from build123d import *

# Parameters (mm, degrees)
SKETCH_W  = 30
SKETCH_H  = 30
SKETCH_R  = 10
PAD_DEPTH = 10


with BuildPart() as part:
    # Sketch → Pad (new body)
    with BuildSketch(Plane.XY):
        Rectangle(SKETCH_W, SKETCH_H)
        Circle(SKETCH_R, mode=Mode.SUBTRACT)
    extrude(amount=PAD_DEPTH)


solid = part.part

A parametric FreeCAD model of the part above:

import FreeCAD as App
import Part
import Sketcher

V = App.Vector

doc = App.newDocument("Part")
body = doc.addObject("PartDesign::Body", "Body")

# Sketch on XY plane
sketch1 = body.newObject("Sketcher::SketchObject", "Sketch")
sketch1.AttachmentSupport = (doc.getObject("XY_Plane"), [""])
sketch1.MapMode = "FlatFace"
sketch1.addGeometry(Part.LineSegment(V(-15, 15, 0), V(-15, -15, 0)), False)
sketch1.addGeometry(Part.LineSegment(V(-15, -15, 0), V(15, -15, 0)), False)
sketch1.addGeometry(Part.LineSegment(V(15, -15, 0), V(15, 15, 0)), False)
sketch1.addGeometry(Part.LineSegment(V(15, 15, 0), V(-15, 15, 0)), False)
sketch1.addGeometry(Part.Circle(V(0, 0, 0), V(0, 0, 1), 10), False)
sketch1.addConstraint(Sketcher.Constraint("Coincident", 0, 2, 1, 1))
sketch1.addConstraint(Sketcher.Constraint("Coincident", 1, 2, 2, 1))
sketch1.addConstraint(Sketcher.Constraint("Coincident", 2, 2, 3, 1))
sketch1.addConstraint(Sketcher.Constraint("Coincident", 3, 2, 0, 1))
sketch1.addConstraint(Sketcher.Constraint("Vertical", 0))
sketch1.addConstraint(Sketcher.Constraint("Horizontal", 1))
sketch1.addConstraint(Sketcher.Constraint("Vertical", 2))
sketch1.addConstraint(Sketcher.Constraint("Horizontal", 3))
sketch1.addConstraint(Sketcher.Constraint("Coincident", 4, 3, -1, 1))
sketch1.addConstraint(Sketcher.Constraint("Symmetric", 0, 2, 2, 2, -1, 1))
sketch1.addConstraint(Sketcher.Constraint("Equal", 3, 0))
sketch1.addConstraint(Sketcher.Constraint("Diameter", 4, 20.0))
sketch1.addConstraint(Sketcher.Constraint("DistanceX", 1, 1, 1, 2, 30.0))
pad1 = body.newObject("PartDesign::Pad", "Pad")
pad1.Profile = sketch1
pad1.Length = 10

doc.recompute()
